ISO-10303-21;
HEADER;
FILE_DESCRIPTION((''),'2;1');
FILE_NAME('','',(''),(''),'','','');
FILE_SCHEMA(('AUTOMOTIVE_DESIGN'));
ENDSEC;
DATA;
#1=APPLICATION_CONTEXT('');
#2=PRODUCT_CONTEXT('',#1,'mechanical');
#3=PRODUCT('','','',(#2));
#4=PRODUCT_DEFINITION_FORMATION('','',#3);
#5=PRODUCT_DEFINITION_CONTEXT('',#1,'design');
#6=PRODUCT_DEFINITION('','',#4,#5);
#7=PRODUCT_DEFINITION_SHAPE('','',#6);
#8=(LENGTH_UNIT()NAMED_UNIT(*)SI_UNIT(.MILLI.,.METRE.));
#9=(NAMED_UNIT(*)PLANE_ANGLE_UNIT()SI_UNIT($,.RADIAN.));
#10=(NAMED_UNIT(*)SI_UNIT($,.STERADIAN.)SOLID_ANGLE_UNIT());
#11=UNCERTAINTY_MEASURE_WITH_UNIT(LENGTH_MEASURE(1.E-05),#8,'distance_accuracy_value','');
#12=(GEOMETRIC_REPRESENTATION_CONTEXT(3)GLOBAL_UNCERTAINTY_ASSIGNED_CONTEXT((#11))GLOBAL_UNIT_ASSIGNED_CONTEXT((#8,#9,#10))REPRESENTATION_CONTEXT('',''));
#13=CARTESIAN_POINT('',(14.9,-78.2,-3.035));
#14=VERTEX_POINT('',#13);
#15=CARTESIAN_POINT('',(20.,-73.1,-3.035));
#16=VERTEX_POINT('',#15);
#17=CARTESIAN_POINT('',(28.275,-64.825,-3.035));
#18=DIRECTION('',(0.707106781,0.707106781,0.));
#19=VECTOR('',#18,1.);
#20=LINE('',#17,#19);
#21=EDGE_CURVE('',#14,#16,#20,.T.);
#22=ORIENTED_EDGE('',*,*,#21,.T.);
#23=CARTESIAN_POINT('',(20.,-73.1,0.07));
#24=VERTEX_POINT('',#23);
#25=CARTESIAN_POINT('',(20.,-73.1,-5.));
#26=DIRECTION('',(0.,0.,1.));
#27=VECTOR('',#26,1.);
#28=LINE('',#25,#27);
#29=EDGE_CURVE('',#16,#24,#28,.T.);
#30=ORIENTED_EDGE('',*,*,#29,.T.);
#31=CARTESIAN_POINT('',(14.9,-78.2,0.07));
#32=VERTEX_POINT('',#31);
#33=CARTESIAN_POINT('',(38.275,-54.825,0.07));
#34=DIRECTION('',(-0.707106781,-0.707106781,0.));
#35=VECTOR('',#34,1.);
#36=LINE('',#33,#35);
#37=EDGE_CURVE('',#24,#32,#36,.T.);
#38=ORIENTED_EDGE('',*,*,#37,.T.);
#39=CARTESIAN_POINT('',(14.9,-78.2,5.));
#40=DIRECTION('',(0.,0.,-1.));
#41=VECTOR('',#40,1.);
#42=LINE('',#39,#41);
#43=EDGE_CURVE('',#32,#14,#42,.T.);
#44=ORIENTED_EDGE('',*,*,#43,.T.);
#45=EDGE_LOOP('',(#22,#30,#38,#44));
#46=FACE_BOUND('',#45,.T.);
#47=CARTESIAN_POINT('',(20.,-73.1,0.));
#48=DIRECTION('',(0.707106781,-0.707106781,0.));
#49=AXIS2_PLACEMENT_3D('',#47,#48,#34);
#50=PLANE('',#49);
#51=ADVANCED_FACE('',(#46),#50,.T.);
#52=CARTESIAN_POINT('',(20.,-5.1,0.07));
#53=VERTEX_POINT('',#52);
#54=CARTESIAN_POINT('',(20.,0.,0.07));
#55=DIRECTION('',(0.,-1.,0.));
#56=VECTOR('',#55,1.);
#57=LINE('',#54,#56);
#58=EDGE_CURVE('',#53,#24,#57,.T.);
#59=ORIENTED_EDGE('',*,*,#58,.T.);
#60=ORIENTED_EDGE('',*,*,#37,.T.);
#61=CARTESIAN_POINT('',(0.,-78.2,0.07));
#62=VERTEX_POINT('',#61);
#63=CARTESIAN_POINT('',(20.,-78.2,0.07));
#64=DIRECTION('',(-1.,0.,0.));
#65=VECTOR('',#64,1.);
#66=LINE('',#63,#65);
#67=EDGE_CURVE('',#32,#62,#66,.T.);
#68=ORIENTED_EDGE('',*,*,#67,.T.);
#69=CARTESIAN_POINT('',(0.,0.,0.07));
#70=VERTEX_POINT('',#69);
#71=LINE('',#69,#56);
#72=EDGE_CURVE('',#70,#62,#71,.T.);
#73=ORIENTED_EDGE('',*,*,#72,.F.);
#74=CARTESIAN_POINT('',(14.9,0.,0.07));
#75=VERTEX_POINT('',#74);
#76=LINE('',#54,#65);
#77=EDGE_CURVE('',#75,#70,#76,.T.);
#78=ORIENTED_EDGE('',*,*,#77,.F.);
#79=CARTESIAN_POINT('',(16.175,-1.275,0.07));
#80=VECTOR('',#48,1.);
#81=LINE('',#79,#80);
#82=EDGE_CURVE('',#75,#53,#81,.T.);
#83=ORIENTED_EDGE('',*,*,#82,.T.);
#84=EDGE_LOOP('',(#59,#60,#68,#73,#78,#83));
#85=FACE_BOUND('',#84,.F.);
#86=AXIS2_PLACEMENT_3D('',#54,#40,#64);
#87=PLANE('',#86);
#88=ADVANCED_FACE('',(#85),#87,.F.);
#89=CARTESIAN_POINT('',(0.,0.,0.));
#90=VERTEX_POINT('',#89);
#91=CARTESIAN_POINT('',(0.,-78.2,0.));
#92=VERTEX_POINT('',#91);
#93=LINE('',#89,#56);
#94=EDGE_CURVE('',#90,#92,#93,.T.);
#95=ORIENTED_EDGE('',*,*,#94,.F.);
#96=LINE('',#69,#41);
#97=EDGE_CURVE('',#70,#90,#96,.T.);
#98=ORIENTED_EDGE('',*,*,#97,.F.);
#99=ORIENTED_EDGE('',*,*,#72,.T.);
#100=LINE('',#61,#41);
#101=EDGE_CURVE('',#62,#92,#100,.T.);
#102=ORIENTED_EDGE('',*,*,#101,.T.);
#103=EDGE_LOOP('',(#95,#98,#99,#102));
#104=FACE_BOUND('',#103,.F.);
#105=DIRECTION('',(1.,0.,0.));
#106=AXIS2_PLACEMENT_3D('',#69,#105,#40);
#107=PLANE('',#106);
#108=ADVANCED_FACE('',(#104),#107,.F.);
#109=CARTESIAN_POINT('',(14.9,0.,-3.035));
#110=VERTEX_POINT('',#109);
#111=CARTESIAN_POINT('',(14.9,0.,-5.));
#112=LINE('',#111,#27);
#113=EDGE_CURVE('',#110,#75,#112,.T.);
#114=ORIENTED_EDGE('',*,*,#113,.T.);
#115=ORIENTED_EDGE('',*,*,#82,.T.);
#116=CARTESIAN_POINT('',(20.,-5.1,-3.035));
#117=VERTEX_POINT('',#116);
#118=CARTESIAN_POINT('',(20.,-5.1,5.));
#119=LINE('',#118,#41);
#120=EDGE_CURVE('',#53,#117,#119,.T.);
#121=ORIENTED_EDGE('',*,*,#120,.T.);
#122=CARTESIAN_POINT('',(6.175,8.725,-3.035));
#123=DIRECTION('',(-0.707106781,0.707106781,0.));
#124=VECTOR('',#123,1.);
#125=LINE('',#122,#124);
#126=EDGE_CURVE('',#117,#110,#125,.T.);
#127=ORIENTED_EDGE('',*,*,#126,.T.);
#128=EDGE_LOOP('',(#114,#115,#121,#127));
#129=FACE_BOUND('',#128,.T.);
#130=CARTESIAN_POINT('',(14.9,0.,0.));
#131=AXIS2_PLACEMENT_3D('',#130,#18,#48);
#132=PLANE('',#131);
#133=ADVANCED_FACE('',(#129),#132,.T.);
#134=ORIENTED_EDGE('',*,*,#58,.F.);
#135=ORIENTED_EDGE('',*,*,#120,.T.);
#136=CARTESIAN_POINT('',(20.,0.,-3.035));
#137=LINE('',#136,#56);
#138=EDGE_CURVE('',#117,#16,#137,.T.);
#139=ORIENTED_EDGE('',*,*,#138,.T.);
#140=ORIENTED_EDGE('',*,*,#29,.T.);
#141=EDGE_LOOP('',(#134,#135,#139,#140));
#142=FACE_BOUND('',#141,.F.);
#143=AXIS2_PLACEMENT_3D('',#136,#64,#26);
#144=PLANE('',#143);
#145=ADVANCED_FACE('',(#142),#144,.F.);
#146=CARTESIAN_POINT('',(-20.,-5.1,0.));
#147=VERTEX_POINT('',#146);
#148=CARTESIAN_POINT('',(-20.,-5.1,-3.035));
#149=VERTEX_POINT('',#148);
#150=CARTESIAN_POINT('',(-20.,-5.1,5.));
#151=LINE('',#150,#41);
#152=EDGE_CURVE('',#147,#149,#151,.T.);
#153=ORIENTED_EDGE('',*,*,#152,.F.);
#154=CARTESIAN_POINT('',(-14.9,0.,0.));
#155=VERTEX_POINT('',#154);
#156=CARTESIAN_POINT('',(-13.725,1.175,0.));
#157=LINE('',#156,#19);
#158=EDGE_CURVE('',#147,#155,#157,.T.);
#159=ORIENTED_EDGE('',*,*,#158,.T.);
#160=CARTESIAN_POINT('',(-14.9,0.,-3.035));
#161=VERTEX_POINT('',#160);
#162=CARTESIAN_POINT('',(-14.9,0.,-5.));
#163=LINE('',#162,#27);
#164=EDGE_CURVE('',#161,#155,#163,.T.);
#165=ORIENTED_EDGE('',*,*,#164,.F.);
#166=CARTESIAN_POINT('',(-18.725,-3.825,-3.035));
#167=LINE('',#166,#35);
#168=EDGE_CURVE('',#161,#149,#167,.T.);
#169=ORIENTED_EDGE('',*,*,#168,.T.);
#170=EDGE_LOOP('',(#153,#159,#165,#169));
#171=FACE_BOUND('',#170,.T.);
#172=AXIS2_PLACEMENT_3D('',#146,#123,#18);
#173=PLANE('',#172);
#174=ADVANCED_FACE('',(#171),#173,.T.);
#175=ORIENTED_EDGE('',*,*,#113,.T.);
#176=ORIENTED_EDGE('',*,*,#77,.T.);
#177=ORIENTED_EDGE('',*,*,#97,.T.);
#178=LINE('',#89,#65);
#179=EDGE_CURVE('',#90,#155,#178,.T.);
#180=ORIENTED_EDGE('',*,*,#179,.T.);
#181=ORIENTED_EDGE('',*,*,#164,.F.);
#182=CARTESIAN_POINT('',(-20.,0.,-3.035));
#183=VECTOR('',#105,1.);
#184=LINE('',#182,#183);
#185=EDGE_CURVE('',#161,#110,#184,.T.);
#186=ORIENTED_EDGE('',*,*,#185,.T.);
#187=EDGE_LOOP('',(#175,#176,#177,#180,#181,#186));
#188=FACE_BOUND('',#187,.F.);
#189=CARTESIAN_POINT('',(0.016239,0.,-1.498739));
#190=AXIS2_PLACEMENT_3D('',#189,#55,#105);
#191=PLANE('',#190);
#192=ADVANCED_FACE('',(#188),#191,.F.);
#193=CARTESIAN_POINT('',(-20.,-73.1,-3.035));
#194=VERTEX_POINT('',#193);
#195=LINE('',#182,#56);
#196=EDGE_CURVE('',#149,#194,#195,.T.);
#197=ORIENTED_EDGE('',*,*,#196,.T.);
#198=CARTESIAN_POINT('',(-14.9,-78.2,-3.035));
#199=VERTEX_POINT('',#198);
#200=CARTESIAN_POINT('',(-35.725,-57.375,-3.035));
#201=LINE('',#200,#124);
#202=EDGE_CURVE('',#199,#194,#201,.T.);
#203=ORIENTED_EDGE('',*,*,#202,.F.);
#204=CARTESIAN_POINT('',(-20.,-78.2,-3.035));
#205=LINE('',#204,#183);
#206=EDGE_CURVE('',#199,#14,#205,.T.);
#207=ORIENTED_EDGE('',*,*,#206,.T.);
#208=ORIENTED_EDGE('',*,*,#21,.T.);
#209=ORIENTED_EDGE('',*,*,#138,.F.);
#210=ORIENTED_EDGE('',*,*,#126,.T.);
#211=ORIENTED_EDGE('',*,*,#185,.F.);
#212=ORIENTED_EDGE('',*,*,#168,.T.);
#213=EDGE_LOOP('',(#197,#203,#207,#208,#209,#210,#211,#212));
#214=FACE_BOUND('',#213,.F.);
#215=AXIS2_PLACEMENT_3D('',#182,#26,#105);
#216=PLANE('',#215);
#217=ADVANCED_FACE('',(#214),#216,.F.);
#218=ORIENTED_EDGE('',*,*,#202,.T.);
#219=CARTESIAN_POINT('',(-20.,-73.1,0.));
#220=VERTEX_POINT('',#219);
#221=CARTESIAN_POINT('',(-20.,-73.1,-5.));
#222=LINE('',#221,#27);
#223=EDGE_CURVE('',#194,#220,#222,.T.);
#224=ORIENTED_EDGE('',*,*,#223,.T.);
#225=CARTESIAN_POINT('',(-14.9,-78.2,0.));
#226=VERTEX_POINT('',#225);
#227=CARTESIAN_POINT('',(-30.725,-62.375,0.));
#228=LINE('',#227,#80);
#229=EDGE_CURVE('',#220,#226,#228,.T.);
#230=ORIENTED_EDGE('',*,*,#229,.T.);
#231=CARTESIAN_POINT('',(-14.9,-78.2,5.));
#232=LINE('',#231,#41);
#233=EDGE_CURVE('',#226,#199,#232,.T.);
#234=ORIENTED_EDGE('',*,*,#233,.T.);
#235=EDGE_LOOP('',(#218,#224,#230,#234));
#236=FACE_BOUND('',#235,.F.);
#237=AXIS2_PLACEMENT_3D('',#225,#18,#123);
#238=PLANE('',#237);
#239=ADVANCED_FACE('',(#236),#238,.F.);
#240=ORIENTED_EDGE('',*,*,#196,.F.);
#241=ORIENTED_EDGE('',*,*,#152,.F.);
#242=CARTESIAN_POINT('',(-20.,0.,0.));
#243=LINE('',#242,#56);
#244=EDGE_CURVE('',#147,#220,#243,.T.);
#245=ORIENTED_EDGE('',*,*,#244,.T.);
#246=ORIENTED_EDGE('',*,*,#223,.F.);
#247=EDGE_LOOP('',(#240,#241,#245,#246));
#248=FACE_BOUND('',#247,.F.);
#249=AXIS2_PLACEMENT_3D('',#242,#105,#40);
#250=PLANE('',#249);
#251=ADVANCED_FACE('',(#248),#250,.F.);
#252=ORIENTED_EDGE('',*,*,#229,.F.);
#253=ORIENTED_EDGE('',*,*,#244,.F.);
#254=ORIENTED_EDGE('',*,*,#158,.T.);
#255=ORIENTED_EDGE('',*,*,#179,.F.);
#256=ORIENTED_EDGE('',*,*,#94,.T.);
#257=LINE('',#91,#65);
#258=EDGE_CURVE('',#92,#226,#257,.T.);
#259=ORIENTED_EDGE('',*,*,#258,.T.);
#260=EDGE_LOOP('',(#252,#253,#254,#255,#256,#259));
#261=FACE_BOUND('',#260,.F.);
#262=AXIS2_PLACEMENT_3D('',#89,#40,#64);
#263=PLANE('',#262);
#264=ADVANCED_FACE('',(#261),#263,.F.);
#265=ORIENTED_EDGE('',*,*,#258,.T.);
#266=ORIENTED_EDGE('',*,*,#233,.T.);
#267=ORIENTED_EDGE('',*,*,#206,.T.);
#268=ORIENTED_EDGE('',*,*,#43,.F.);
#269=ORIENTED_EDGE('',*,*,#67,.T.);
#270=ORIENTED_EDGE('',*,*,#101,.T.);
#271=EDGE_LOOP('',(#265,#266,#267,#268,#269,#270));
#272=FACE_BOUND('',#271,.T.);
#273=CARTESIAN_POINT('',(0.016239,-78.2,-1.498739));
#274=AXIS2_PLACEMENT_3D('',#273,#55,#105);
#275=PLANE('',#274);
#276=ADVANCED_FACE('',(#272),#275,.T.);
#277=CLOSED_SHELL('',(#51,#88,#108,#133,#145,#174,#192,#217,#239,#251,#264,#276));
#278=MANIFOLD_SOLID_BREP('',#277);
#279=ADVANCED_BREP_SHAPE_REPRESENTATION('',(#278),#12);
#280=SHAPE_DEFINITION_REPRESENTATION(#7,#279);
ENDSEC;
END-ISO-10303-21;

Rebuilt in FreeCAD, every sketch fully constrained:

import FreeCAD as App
import Part
import Sketcher

V = App.Vector
Q = App.Units.Quantity


def add_polygon(sketch, points):
    """Adds a closed chain of lines whose ends are joined by coincident constraints."""
    first, n = sketch.GeometryCount, len(points)
    for a, b in zip(points, points[1:] + points[:1]):
        sketch.addGeometry(Part.LineSegment(App.Vector(*a, 0), App.Vector(*b, 0)), False)
    for i in range(n):
        sketch.addConstraint(Sketcher.Constraint("Coincident", first + i, 2, first + (i + 1) % n, 1))

doc = App.newDocument("Part")
body = doc.addObject("PartDesign::Body", "Body")

# Sketch on XZ plane
sketch1 = doc.addObject("Sketcher::SketchObject", "Sketch")
body.addObject(sketch1)
sketch1.AttachmentSupport = (doc.XZ_Plane, [""])
sketch1.MapMode = "FlatFace"
add_polygon(sketch1, [(0, 0), (-20, 0), (-20, -3.04), (20, -3.04), (20, 0.07), (0, 0.07)])  # lines 0-5
sketch1.addConstraint([
    Sketcher.Constraint("Horizontal", 0),
    Sketcher.Constraint("Vertical", 1),
    Sketcher.Constraint("Horizontal", 2),
    Sketcher.Constraint("Vertical", 3),
    Sketcher.Constraint("Horizontal", 4),
    Sketcher.Constraint("Vertical", 5),
    Sketcher.Constraint("Coincident", 5, 2, -1, 1),
    Sketcher.Constraint("Equal", 0, 4),
    Sketcher.Constraint("DistanceX", 0, 2, 0, 1, Q("20 mm")),
    Sketcher.Constraint("DistanceY", 5, 2, 5, 1, Q("0.07 mm")),
    Sketcher.Constraint("DistanceY", 1, 2, 1, 1, Q("3.035 mm")),
])
pad1 = doc.addObject("PartDesign::Pad", "Pad")
body.addObject(pad1)
pad1.Profile = sketch1
pad1.Length = 78.2

# Sketch on XY plane
sketch2 = doc.addObject("Sketcher::SketchObject", "Sketch001")
body.addObject(sketch2)
sketch2.AttachmentSupport = (doc.XY_Plane, [""])
sketch2.MapMode = "FlatFace"
add_polygon(sketch2, [(20, 0), (15, 0), (20, -5)])  # lines 0-2
add_polygon(sketch2, [(20, -78), (20, -73), (15, -78)])  # lines 3-5
add_polygon(sketch2, [(-20, -5), (-15, 0), (-20, 0)])  # lines 6-8
add_polygon(sketch2, [(-15, -78), (-20, -73), (-20, -78)])  # lines 9-11
sketch2.addConstraint([
    Sketcher.Constraint("Horizontal", 0),
    Sketcher.Constraint("Vertical", 2),
    Sketcher.Constraint("Vertical", 3),
    Sketcher.Constraint("Horizontal", 5),
    Sketcher.Constraint("Horizontal", 7),
    Sketcher.Constraint("Vertical", 8),
    Sketcher.Constraint("Vertical", 10),
    Sketcher.Constraint("Horizontal", 11),
    Sketcher.Constraint("Symmetric", 0, 2, 6, 2, -1, 1),
    Sketcher.Constraint("Symmetric", 2, 2, 7, 2, -2),
    Sketcher.Constraint("Symmetric", 3, 2, 9, 2, -2),
    Sketcher.Constraint("Symmetric", 4, 2, 11, 2, -2),
    Sketcher.Constraint("Perpendicular", 1, 4),
    Sketcher.Constraint("Parallel", 4, 6),
    Sketcher.Constraint("Perpendicular", 6, 9),
    Sketcher.Constraint("Vertical", 2, 2, 3, 2),
    Sketcher.Constraint("Vertical", 0, 2, 4, 2),
    Sketcher.Constraint("DistanceX", 0, 2, 0, 1, Q("5.1 mm")),
    Sketcher.Constraint("DistanceX", -1, 1, 1, 2, Q("20 mm")),
    Sketcher.Constraint("DistanceY", 3, 2, 1, 2, Q("68 mm")),
])
pocket1 = doc.addObject("PartDesign::Pocket", "Pocket")
body.addObject(pocket1)
pocket1.Profile = sketch2
pocket1.Length = 10
pocket1.Midplane = True

doc.recompute()
